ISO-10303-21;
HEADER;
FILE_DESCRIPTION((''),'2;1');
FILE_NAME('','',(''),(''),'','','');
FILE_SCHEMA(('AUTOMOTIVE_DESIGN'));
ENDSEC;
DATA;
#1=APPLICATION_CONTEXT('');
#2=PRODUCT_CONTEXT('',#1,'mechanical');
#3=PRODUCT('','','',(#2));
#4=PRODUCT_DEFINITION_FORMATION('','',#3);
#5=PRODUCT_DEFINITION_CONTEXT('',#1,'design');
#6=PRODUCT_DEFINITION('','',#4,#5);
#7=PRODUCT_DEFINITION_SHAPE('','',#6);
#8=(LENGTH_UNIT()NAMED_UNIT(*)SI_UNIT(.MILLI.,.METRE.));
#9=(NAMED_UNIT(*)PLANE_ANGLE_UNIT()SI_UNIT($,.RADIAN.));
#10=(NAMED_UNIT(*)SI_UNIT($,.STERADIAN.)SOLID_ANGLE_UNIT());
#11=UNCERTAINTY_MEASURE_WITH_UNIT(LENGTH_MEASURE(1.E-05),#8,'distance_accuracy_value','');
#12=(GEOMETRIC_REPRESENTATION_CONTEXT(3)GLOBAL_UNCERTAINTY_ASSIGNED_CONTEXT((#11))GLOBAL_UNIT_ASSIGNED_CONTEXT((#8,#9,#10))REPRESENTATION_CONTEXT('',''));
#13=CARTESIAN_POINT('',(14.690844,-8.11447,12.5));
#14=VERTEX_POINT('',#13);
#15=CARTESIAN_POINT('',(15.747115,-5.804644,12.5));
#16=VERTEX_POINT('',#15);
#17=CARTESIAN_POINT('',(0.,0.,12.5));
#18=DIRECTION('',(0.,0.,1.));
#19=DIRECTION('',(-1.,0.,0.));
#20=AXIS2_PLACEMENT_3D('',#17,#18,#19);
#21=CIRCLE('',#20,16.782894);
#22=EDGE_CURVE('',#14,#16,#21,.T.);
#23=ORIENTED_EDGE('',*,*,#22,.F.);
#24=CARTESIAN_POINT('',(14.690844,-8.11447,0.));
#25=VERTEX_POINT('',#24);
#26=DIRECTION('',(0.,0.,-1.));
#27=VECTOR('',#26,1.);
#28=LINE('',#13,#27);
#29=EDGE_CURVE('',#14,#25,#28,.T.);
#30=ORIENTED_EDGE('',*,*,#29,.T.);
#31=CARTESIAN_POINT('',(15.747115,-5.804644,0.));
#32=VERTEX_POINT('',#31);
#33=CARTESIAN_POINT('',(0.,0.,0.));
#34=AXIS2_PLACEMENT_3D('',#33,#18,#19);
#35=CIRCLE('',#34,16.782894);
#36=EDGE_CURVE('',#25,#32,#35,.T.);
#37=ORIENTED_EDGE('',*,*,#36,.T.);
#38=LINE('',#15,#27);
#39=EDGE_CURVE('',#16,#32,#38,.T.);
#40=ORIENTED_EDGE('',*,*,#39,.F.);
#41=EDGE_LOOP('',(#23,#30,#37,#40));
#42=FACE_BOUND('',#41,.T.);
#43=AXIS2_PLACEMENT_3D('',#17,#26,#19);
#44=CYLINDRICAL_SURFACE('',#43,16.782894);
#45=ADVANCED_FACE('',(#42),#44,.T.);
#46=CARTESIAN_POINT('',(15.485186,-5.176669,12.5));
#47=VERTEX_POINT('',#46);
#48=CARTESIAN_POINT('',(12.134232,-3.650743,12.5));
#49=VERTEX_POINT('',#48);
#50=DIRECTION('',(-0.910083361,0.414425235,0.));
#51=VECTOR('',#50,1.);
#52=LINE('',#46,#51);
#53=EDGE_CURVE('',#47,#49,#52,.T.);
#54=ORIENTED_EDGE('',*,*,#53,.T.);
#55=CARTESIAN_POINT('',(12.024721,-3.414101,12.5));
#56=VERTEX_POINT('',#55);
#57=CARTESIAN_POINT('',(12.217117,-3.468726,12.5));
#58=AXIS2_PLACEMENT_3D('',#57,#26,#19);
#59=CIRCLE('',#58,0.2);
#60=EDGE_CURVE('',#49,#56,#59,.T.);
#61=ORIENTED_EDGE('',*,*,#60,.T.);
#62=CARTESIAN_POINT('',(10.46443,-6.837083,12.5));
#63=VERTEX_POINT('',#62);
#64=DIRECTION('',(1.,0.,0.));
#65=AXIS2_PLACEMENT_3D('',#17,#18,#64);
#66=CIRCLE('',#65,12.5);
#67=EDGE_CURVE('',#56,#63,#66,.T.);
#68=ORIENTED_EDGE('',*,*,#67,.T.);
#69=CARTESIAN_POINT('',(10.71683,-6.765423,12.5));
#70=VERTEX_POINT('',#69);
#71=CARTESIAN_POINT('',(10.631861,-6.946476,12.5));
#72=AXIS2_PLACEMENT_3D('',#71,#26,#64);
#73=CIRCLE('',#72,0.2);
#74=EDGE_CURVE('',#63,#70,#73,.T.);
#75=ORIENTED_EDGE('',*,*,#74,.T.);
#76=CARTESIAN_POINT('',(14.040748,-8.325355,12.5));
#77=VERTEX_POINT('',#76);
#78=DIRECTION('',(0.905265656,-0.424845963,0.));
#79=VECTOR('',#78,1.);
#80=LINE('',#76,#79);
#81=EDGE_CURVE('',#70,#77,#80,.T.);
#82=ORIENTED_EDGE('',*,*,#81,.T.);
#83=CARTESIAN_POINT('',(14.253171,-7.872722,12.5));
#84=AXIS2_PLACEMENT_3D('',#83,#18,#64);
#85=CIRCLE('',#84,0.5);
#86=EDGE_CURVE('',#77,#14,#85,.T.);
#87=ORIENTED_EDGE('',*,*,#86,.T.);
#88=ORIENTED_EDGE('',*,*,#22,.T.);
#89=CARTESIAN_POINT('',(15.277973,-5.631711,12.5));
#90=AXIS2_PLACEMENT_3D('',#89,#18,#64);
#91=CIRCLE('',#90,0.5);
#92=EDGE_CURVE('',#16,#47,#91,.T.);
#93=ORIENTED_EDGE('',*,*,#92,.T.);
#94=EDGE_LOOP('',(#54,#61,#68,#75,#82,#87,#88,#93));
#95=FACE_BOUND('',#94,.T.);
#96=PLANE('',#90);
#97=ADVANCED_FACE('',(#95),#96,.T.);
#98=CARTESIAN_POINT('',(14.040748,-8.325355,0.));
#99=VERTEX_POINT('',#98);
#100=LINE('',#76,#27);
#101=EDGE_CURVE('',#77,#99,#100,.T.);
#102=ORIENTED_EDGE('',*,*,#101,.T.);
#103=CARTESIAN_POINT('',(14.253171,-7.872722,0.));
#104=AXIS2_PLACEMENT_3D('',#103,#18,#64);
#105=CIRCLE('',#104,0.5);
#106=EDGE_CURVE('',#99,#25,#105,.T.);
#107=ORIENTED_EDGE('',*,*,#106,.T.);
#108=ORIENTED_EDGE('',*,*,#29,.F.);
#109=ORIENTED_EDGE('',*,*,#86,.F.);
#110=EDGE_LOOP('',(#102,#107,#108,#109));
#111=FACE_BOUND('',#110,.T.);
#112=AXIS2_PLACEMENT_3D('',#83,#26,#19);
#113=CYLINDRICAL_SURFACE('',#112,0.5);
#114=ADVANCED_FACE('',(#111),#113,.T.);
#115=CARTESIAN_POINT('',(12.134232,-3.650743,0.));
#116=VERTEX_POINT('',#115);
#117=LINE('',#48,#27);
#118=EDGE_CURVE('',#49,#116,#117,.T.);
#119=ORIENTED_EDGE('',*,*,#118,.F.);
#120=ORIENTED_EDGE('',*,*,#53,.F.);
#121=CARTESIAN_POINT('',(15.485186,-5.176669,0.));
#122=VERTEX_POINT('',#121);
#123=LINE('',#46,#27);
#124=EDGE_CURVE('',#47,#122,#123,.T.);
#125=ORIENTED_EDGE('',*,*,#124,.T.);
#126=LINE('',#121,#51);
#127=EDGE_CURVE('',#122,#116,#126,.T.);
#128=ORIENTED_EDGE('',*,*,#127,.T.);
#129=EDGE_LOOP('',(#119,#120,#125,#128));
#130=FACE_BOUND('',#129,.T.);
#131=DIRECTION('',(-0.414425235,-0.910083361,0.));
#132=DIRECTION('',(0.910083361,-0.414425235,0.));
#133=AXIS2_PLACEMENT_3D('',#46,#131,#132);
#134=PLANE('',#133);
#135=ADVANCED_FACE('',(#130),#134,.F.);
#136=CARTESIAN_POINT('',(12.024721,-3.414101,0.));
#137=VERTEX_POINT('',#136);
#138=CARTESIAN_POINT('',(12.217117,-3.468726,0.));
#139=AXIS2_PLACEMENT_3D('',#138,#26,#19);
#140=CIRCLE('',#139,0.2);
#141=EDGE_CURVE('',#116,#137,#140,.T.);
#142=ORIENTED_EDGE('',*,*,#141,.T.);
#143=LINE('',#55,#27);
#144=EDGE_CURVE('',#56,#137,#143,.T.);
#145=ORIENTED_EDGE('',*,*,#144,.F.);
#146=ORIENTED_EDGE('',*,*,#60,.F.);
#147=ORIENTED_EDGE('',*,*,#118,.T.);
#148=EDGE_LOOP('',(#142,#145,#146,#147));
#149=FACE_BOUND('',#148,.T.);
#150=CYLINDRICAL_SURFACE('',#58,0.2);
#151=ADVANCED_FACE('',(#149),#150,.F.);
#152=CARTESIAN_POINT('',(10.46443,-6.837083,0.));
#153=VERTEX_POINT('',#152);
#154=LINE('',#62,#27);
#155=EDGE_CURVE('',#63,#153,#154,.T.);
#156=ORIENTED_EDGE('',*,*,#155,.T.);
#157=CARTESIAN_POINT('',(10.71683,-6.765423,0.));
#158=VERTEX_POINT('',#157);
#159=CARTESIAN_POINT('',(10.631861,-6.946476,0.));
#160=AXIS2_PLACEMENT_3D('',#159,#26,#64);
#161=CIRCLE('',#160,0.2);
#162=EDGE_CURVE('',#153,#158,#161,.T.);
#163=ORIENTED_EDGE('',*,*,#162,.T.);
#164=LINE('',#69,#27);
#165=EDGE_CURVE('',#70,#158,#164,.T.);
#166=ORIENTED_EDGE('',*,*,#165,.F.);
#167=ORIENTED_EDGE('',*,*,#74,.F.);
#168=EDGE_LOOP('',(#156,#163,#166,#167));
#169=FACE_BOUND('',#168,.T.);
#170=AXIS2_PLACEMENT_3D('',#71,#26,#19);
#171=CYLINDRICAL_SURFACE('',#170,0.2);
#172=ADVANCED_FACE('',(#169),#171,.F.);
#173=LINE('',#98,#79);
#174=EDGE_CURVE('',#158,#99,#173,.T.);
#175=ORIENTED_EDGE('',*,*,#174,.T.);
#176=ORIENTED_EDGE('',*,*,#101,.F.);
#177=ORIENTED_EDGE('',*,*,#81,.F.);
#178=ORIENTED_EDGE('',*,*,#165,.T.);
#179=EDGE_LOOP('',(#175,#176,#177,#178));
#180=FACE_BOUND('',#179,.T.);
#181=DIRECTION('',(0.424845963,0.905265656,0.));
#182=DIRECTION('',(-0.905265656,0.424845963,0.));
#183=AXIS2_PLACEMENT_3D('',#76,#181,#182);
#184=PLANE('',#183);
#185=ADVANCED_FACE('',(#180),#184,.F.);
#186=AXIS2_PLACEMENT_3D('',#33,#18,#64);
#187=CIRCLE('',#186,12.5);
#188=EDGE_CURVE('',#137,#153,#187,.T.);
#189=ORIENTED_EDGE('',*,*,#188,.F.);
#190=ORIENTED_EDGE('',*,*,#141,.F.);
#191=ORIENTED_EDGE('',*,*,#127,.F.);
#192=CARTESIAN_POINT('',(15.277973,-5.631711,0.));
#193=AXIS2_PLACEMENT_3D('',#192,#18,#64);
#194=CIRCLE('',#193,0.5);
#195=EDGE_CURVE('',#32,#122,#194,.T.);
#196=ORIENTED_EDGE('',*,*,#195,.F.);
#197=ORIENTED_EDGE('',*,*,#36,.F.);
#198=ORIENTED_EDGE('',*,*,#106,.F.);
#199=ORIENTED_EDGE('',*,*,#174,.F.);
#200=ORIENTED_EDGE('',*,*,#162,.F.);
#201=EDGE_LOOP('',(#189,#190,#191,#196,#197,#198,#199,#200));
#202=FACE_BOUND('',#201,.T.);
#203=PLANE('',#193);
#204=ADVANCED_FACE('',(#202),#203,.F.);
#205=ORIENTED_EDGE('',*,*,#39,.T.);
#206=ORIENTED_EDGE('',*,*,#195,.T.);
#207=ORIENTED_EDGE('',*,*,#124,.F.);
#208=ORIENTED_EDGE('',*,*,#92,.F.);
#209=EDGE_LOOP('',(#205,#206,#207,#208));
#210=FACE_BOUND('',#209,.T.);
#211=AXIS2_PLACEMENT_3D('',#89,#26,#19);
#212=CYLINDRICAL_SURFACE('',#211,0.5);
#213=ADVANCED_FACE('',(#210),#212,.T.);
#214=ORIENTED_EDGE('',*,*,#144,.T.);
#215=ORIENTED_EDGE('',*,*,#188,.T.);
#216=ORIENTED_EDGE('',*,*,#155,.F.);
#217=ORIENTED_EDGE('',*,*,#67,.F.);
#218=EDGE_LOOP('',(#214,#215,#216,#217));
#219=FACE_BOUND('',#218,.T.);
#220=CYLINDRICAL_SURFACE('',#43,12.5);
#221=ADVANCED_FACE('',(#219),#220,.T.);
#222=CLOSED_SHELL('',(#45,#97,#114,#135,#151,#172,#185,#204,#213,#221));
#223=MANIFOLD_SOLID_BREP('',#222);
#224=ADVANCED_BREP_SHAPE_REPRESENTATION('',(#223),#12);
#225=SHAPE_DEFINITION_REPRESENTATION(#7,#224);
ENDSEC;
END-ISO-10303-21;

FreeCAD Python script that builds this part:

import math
import FreeCAD as App
import Part
import Sketcher
Q = App.Units.Quantity

doc = App.newDocument("Part")
params = doc.addObject("Spreadsheet::Sheet", "Params")
for row, (alias, value) in enumerate([
    ("sketch1_radius", "0.2 mm"),
    ("sketch1_radius2", "12.5 mm"),
    ("sketch1_radius3", "0.5 mm"),
    ("pad1_length", "12.5 mm"),
], start=1):
    params.set(f"A{row}", alias)
    params.set(f"B{row}", "=" + value)
    params.setAlias(f"B{row}", alias)

body = doc.addObject("PartDesign::Body", "Body")

sketch1 = body.newObject("Sketcher::SketchObject", "Sketch")
sketch1.AttachmentSupport = (doc.getObject("XY_Plane"), [""])
sketch1.MapMode = "FlatFace"
sketch1.addGeometry(Part.LineSegment(App.Vector(15.49, -5.18, 0), App.Vector(12.13, -3.65, 0)), False)
sketch1.addGeometry(Part.ArcOfCircle(Part.Circle(App.Vector(12.22, -3.47, 0), App.Vector(0, 0, 1), 0.2), math.radians(164), math.radians(246)), False)
sketch1.addGeometry(Part.ArcOfCircle(Part.Circle(App.Vector(0, 0, 0), App.Vector(0, 0, 1), 12.5), math.radians(-16), math.radians(327)), False)
sketch1.addGeometry(Part.ArcOfCircle(Part.Circle(App.Vector(10.63, -6.95, 0), App.Vector(0, 0, 1), 0.2), math.radians(65), math.radians(147)), False)
sketch1.addGeometry(Part.LineSegment(App.Vector(10.72, -6.77, 0), App.Vector(14.04, -8.33, 0)), False)
sketch1.addGeometry(Part.ArcOfCircle(Part.Circle(App.Vector(14.25, -7.87, 0), App.Vector(0, 0, 1), 0.5), math.radians(-115), math.radians(-29)), False)
sketch1.addGeometry(Part.ArcOfCircle(Part.Circle(App.Vector(0, 0, 0), App.Vector(0, 0, 1), 16.78), math.radians(-28.91), math.radians(-20.23)), False)
sketch1.addGeometry(Part.ArcOfCircle(Part.Circle(App.Vector(15.28, -5.63, 0), App.Vector(0, 0, 1), 0.5), math.radians(-20), math.radians(66)), False)
sketch1.addConstraint(Sketcher.Constraint("Tangent", 0, 2, 1, 2))
sketch1.addConstraint(Sketcher.Constraint("Tangent", 1, 1, 2, 1))
sketch1.addConstraint(Sketcher.Constraint("Tangent", 2, 2, 3, 2))
sketch1.addConstraint(Sketcher.Constraint("Tangent", 3, 1, 4, 1))
sketch1.addConstraint(Sketcher.Constraint("Tangent", 4, 2, 5, 1))
sketch1.addConstraint(Sketcher.Constraint("Tangent", 5, 2, 6, 1))
sketch1.addConstraint(Sketcher.Constraint("Tangent", 6, 2, 7, 1))
sketch1.addConstraint(Sketcher.Constraint("Tangent", 7, 2, 0, 1))
sketch1.addConstraint(Sketcher.Constraint("Coincident", 2, 3, -1, 1))
sketch1.addConstraint(Sketcher.Constraint("Coincident", 6, 3, -1, 1))
sketch1.addConstraint(Sketcher.Constraint("Equal", 1, 3))
sketch1.addConstraint(Sketcher.Constraint("Equal", 5, 7))
sketch1.addConstraint(Sketcher.Constraint("Radius", 1, Q("0.2 mm")))
sketch1.addConstraint(Sketcher.Constraint("Radius", 2, Q("12.5 mm")))
sketch1.addConstraint(Sketcher.Constraint("Radius", 5, Q("0.5 mm")))
sketch1.addConstraint(Sketcher.Constraint("Radius", 6, Q("16.782894 mm")))
sketch1.addConstraint(Sketcher.Constraint("DistanceY", 1, 1, -1, 1, Q("3.414101 mm")))
sketch1.addConstraint(Sketcher.Constraint("DistanceX", 2, 2, 0, 2, Q("1.669801 mm")))
sketch1.addConstraint(Sketcher.Constraint("DistanceX", 2, 2, 3, 1, Q("0.2524 mm")))
sketch1.addConstraint(Sketcher.Constraint("DistanceY", 6, 2, 0, 2, Q("2.153901 mm")))
sketch1.setExpression("Constraints[12]", "Params.sketch1_radius")
sketch1.setExpression("Constraints[13]", "Params.sketch1_radius2")
sketch1.setExpression("Constraints[14]", "Params.sketch1_radius3")
pad1 = body.newObject("PartDesign::Pad", "Pad")
pad1.Profile = sketch1
pad1.setExpression("Length", "Params.pad1_length")

doc.recompute()
